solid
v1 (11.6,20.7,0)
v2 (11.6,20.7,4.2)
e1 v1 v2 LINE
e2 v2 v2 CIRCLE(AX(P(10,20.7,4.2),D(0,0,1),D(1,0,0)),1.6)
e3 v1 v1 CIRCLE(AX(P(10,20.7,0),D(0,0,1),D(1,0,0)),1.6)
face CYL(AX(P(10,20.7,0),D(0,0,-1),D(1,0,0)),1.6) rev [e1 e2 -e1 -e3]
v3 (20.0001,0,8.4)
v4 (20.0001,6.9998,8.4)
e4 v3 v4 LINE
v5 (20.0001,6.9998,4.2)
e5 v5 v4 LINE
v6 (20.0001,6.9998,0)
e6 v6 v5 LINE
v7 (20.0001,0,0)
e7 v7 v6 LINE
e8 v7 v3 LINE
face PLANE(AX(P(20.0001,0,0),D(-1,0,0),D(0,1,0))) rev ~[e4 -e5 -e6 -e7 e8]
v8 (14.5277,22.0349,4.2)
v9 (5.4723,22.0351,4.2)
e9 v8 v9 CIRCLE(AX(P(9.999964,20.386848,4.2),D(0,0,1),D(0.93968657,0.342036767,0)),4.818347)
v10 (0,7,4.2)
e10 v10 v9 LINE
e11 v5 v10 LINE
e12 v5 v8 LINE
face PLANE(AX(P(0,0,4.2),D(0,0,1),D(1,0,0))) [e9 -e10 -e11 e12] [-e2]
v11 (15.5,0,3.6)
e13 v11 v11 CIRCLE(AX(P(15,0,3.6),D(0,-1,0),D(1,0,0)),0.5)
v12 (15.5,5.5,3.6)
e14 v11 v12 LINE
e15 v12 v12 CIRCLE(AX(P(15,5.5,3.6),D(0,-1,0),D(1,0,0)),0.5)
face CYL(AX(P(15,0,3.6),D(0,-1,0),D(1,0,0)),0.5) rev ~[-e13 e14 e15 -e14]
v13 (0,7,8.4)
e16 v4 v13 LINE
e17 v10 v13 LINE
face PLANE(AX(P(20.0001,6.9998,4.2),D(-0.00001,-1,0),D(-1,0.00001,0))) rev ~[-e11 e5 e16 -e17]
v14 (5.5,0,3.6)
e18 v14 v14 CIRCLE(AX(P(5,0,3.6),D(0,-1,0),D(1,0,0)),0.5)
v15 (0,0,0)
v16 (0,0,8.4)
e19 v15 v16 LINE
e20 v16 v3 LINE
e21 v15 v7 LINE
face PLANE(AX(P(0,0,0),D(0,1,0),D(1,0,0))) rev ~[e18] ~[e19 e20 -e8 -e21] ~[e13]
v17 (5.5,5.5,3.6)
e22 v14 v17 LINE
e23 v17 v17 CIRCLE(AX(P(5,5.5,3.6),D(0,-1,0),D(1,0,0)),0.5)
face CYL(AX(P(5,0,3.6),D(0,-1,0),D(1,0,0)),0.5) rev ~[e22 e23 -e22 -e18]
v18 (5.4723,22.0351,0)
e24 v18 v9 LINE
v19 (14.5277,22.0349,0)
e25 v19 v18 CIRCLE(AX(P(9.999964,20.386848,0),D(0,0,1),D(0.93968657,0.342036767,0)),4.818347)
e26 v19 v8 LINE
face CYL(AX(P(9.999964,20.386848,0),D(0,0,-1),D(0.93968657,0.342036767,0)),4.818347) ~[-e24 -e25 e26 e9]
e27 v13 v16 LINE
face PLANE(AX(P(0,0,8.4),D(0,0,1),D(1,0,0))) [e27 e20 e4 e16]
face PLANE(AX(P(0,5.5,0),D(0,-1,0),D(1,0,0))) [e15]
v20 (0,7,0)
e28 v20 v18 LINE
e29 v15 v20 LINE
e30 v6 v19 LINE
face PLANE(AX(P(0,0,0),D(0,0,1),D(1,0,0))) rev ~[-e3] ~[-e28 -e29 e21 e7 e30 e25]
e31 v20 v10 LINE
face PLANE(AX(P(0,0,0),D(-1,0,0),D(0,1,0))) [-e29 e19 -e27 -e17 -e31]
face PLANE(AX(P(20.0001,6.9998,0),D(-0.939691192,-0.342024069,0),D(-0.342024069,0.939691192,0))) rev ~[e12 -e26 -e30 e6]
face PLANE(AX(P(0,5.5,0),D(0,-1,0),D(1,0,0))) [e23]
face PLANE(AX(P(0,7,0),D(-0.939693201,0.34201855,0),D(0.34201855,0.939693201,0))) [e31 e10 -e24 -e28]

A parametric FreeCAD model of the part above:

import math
import FreeCAD as App
import Part
import Sketcher

V = App.Vector
Q = App.Units.Quantity

doc = App.newDocument("Part")
body = doc.addObject("PartDesign::Body", "Body")

# Sketch on XY plane
sketch1 = body.newObject("Sketcher::SketchObject", "Sketch")
sketch1.AttachmentSupport = (doc.getObject("XY_Plane"), [""])
sketch1.MapMode = "FlatFace"
sketch1.addGeometry([
    Part.LineSegment(V(0, 7, 0), V(0, 0, 0)),  # 0
    Part.LineSegment(V(0, 0, 0), V(20, 0, 0)),  # 1
    Part.LineSegment(V(20, 0, 0), V(20, 7, 0)),  # 2
    Part.LineSegment(V(20, 7, 0), V(14.5, 22, 0)),  # 3
    Part.ArcOfCircle(Part.Circle(V(10, 20.4, 0), V(0, 0, 1), 4.8), math.radians(20), math.radians(160)),  # 4
    Part.LineSegment(V(5.5, 22, 0), V(0, 7, 0)),  # 5
    Part.Circle(V(10, 20.7, 0), V(0, 0, 1), 1.6),  # 6
], False)
sketch1.addConstraint([
    Sketcher.Constraint("Coincident", 0, 2, 1, 1),
    Sketcher.Constraint("Coincident", 1, 2, 2, 1),
    Sketcher.Constraint("Coincident", 2, 2, 3, 1),
    Sketcher.Constraint("Tangent", 3, 2, 4, 1),
    Sketcher.Constraint("Tangent", 4, 2, 5, 1),
    Sketcher.Constraint("Coincident", 5, 2, 0, 1),
    Sketcher.Constraint("Vertical", 0),
    Sketcher.Constraint("Horizontal", 1),
    Sketcher.Constraint("Vertical", 2),
    Sketcher.Constraint("Coincident", 0, 2, -1, 1),
    Sketcher.Constraint("Horizontal", 3, 2, 4, 2),
    Sketcher.Constraint("Vertical", 4, 3, 6, 3),
    Sketcher.Constraint("Equal", 3, 5),
    Sketcher.Constraint("DistanceY", 0, 2, 0, 1, Q("7 mm")),
    Sketcher.Constraint("Angle", 3, Q("110.0002 deg")),
    Sketcher.Constraint("Distance", 3, Q("16 mm")),
    Sketcher.Constraint("DistanceX", -1, 1, 4, 3, Q("10 mm")),
    Sketcher.Constraint("Diameter", 6, Q("3.2 mm")),
    Sketcher.Constraint("DistanceY", -1, 1, 6, 3, Q("20.7 mm")),
])
pad1 = body.newObject("PartDesign::Pad", "Pad")
pad1.Profile = sketch1
pad1.Length = 4.2

# Sketch on XY plane
sketch2 = body.newObject("Sketcher::SketchObject", "Sketch001")
sketch2.AttachmentSupport = (doc.getObject("XY_Plane"), [""])
sketch2.MapMode = "FlatFace"
sketch2.AttachmentOffset = App.Placement(V(0, 0, 4.2), App.Rotation())
sketch2.addGeometry([
    Part.LineSegment(V(20, 7, 0), V(0, 7, 0)),
    Part.LineSegment(V(0, 7, 0), V(0, 0, 0)),
    Part.LineSegment(V(0, 0, 0), V(20, 0, 0)),
    Part.LineSegment(V(20, 0, 0), V(20, 7, 0)),
], False)
sketch2.addConstraint([
    Sketcher.Constraint("Coincident", 0, 2, 1, 1),
    Sketcher.Constraint("Coincident", 1, 2, 2, 1),
    Sketcher.Constraint("Coincident", 2, 2, 3, 1),
    Sketcher.Constraint("Coincident", 3, 2, 0, 1),
    Sketcher.Constraint("Vertical", 1),
    Sketcher.Constraint("Horizontal", 2),
    Sketcher.Constraint("Vertical", 3),
    Sketcher.Constraint("Coincident", 1, 2, -1, 1),
    Sketcher.Constraint("DistanceX", 2, 1, 2, 2, Q("20 mm")),
    Sketcher.Constraint("DistanceY", 1, 2, 1, 1, Q("7 mm")),
    Sketcher.Constraint("Angle", 0, Q("179.9994 deg")),
])
pad2 = body.newObject("PartDesign::Pad", "Pad001")
pad2.Profile = sketch2
pad2.Length = 4.2

# Sketch on XZ plane
sketch3 = body.newObject("Sketcher::SketchObject", "Sketch002")
sketch3.AttachmentSupport = (doc.getObject("XZ_Plane"), [""])
sketch3.MapMode = "FlatFace"
sketch3.addGeometry([
    Part.Circle(V(5, 3.6, 0), V(0, 0, 1), 0.5),
    Part.Circle(V(15, 3.6, 0), V(0, 0, 1), 0.5),
], False)
sketch3.addConstraint([
    Sketcher.Constraint("Equal", 0, 1),
    Sketcher.Constraint("Horizontal", 0, 3, 1, 3),
    Sketcher.Constraint("Diameter", 0, Q("1 mm")),
    Sketcher.Constraint("DistanceX", -1, 1, 0, 3, Q("5 mm")),
    Sketcher.Constraint("DistanceX", -1, 1, 1, 3, Q("15 mm")),
    Sketcher.Constraint("DistanceY", -1, 1, 0, 3, Q("3.6 mm")),
])
pocket1 = body.newObject("PartDesign::Pocket", "Pocket")
pocket1.Profile = sketch3
pocket1.Length = 5.5

doc.recompute()
